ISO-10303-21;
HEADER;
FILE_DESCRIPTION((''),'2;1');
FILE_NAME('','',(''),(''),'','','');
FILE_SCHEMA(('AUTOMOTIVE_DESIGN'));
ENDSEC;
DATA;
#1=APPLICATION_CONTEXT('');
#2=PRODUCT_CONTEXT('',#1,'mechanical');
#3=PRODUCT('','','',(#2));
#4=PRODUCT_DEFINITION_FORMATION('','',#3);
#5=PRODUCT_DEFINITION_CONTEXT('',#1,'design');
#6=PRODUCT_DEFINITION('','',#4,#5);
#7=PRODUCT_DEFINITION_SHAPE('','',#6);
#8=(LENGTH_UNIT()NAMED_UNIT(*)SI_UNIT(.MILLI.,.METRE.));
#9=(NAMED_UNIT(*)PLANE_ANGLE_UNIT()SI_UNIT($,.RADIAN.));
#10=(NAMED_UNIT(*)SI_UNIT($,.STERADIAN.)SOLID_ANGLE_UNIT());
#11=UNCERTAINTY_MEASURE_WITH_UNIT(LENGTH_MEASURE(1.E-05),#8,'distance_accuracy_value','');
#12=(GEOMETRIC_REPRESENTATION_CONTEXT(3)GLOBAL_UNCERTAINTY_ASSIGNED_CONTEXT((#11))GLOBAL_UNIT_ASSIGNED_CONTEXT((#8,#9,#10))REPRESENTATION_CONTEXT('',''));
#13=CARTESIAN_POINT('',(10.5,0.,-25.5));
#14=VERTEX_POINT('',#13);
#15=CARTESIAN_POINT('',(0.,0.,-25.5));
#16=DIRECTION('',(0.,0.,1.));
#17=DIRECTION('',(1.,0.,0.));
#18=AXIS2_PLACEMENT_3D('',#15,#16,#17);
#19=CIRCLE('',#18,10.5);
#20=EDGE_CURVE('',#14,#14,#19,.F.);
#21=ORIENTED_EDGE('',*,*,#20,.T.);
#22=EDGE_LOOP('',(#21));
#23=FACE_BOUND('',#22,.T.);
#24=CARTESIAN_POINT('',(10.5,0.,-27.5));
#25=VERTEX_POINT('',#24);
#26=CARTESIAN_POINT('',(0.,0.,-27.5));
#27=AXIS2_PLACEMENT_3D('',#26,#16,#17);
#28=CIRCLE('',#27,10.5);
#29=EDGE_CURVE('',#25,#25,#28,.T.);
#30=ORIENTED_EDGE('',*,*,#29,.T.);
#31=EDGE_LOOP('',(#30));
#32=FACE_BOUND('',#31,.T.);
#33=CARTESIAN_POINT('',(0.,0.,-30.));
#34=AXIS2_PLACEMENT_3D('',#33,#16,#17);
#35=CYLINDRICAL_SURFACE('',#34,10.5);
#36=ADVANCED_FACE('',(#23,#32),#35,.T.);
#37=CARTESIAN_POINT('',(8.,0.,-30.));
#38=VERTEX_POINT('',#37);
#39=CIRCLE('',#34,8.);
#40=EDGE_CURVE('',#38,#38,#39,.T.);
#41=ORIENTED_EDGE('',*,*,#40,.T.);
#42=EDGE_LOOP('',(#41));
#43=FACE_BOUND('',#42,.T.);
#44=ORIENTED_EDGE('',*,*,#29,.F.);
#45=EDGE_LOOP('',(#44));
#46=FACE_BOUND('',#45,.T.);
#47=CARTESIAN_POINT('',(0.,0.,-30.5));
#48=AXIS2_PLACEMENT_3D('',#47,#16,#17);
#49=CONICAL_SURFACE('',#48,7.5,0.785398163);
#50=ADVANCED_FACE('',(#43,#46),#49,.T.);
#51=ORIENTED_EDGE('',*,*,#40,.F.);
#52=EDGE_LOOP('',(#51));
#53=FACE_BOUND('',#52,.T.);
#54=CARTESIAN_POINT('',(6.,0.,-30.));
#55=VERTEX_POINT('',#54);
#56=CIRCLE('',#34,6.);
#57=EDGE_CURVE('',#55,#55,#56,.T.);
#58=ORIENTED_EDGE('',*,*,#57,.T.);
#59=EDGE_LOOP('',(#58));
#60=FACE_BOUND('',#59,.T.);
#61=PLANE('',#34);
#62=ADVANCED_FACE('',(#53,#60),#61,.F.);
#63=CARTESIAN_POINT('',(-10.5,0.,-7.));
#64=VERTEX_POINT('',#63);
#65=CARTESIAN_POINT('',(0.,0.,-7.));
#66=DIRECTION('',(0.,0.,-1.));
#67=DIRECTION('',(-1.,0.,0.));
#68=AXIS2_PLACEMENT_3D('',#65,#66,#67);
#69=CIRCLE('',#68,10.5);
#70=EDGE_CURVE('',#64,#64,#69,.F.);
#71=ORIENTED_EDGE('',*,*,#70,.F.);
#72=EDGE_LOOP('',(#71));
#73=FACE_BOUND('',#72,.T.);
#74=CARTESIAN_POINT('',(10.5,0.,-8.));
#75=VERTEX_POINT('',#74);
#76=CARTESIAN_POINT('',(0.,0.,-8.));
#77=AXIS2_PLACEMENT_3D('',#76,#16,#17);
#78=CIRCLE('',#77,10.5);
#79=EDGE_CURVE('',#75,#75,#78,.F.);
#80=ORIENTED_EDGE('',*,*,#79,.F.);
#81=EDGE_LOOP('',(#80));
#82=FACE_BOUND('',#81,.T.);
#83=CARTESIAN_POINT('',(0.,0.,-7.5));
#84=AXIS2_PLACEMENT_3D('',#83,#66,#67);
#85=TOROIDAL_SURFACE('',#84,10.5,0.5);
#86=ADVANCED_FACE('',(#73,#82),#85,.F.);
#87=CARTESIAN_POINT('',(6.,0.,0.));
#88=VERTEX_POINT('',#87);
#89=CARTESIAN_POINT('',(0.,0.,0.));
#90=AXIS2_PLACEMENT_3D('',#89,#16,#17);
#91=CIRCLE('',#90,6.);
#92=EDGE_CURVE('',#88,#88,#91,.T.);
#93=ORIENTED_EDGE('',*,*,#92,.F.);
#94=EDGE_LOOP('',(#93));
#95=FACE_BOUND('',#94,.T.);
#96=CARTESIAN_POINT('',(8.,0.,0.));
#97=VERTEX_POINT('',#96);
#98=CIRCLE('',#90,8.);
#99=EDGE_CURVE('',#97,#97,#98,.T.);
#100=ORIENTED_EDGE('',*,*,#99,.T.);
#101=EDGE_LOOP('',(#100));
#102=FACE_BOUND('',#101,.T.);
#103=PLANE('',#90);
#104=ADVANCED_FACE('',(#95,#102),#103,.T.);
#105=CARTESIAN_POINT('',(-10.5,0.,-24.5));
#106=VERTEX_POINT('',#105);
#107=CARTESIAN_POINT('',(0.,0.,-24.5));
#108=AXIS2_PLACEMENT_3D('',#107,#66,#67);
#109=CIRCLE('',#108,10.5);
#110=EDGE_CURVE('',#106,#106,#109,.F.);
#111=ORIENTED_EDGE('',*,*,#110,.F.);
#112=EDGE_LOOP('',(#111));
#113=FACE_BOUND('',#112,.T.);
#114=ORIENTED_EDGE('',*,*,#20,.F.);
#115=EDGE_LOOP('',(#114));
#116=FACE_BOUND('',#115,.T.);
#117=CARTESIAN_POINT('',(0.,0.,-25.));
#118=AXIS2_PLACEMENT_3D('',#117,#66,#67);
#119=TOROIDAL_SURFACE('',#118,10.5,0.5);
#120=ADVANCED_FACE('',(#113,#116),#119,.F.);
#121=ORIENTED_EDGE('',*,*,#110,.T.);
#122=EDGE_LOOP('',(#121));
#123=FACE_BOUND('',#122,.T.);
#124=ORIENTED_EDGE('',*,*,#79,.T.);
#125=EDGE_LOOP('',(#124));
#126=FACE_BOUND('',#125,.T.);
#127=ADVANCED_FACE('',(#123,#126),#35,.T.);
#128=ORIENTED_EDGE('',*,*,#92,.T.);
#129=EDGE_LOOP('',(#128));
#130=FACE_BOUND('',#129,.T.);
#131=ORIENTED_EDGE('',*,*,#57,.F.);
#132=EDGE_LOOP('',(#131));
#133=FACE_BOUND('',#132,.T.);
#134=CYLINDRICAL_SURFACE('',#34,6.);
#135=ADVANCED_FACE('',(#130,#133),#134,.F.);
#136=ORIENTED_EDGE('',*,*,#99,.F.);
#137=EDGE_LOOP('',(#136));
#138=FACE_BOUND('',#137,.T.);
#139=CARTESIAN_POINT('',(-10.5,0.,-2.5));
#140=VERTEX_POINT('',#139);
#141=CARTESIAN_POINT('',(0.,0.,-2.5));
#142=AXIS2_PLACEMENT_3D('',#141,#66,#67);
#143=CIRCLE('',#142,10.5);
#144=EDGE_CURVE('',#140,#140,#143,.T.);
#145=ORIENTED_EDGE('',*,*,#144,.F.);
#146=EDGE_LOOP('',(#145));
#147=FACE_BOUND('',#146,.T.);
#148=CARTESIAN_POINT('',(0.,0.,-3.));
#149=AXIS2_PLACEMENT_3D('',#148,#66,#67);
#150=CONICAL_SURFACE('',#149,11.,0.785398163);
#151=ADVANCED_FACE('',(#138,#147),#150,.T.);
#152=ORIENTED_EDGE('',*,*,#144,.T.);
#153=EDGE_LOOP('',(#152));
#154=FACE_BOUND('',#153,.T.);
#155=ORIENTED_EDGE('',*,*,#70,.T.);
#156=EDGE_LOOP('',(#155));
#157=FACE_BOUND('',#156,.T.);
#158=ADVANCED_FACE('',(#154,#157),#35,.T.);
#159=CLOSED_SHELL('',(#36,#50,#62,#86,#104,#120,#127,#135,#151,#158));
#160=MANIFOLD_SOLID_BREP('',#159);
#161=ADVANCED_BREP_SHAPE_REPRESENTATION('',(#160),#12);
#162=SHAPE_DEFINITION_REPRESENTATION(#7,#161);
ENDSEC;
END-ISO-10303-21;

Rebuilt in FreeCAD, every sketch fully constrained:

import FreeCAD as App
import Part
import Sketcher

V = App.Vector


def add_polygon(sketch, points):
    """Adds a closed chain of lines whose ends are joined by coincident constraints."""
    first, n = sketch.GeometryCount, len(points)
    for a, b in zip(points, points[1:] + points[:1]):
        sketch.addGeometry(Part.LineSegment(App.Vector(*a, 0), App.Vector(*b, 0)), False)
    for i in range(n):
        sketch.addConstraint(Sketcher.Constraint("Coincident", first + i, 2, first + (i + 1) % n, 1))

doc = App.newDocument("Part")
params = doc.addObject("Spreadsheet::Sheet", "Params")
for row, (alias, value) in enumerate([
    ("sketch1_diameter", "21 mm"),
    ("sketch1_diameter2", "12 mm"),
    ("pad1_length", "30 mm"),
    ("sketch2_width", "3.5 mm"),
    ("groove_angle", "360 deg"),
    ("sketch3_diameter", "1 mm"),
    ("groove2_angle", "360 deg"),
], start=1):
    params.set(f"A{row}", alias)
    params.set(f"B{row}", "=" + value)
    params.setAlias(f"B{row}", alias)

body = doc.addObject("PartDesign::Body", "Body")

# Sketch on XY plane
sketch1 = body.newObject("Sketcher::SketchObject", "Sketch")
sketch1.AttachmentSupport = (doc.getObject("XY_Plane"), [""])
sketch1.MapMode = "FlatFace"
sketch1.addGeometry(Part.Circle(V(0, 0, 0), V(0, 0, 1), 10.5), False)
sketch1.addGeometry(Part.Circle(V(0, 0, 0), V(0, 0, 1), 6), False)
sketch1.addConstraint(Sketcher.Constraint("Coincident", 0, 3, -1, 1))
sketch1.addConstraint(Sketcher.Constraint("Coincident", 1, 3, -1, 1))
sketch1.addConstraint(Sketcher.Constraint("Diameter", 0, 21.0))
sketch1.addConstraint(Sketcher.Constraint("Diameter", 1, 12.0))
sketch1.setExpression("Constraints[2]", "Params.sketch1_diameter")
sketch1.setExpression("Constraints[3]", "Params.sketch1_diameter2")
pad1 = body.newObject("PartDesign::Pad", "Pad")
pad1.Profile = sketch1
pad1.setExpression("Length", "Params.pad1_length")
pad1.Reversed = True

# Sketch on XZ plane
sketch2 = body.newObject("Sketcher::SketchObject", "Sketch001")
sketch2.AttachmentSupport = (doc.getObject("XZ_Plane"), [""])
sketch2.MapMode = "FlatFace"
add_polygon(sketch2, [(7.5, -30.5), (11, -27), (11, -30.5)])  # lines 0-2
add_polygon(sketch2, [(11, -3), (7.5, 0.5), (11, 0.5)])  # lines 3-5
sketch2.addConstraint(Sketcher.Constraint("Vertical", 1))
sketch2.addConstraint(Sketcher.Constraint("Horizontal", 2))
sketch2.addConstraint(Sketcher.Constraint("Horizontal", 4))
sketch2.addConstraint(Sketcher.Constraint("Vertical", 5))
sketch2.addConstraint(Sketcher.Constraint("Perpendicular", 0, 3))
sketch2.addConstraint(Sketcher.Constraint("Vertical", 2, 2, 3, 2))
sketch2.addConstraint(Sketcher.Constraint("Vertical", 1, 2, 4, 2))
sketch2.addConstraint(Sketcher.Constraint("Equal", 4, 1))
sketch2.addConstraint(Sketcher.Constraint("DistanceX", 2, 2, 2, 1, 3.5))
sketch2.addConstraint(Sketcher.Constraint("DistanceX", -1, 1, 0, 2, 11.0))
sketch2.addConstraint(Sketcher.Constraint("DistanceY", 0, 2, -1, 1, 27.0))
sketch2.addConstraint(Sketcher.Constraint("DistanceY", 5, 2, -1, 1, 3.0))
sketch2.setExpression("Constraints[14]", "Params.sketch2_width")
groove = body.newObject("PartDesign::Groove", "Groove")
groove.Profile = sketch2
groove.ReferenceAxis = (sketch2, ["V_Axis"])
groove.setExpression("Angle", "Params.groove_angle")

# Sketch on XZ plane
sketch3 = body.newObject("Sketcher::SketchObject", "Sketch002")
sketch3.AttachmentSupport = (doc.getObject("XZ_Plane"), [""])
sketch3.MapMode = "FlatFace"
sketch3.addGeometry(Part.Circle(V(10.5, -25, 0), V(0, 0, 1), 0.5), False)
sketch3.addGeometry(Part.Circle(V(10.5, -7.5, 0), V(0, 0, 1), 0.5), False)
sketch3.addConstraint(Sketcher.Constraint("Equal", 0, 1))
sketch3.addConstraint(Sketcher.Constraint("Vertical", 0, 3, 1, 3))
sketch3.addConstraint(Sketcher.Constraint("Diameter", 0, 1.0))
sketch3.addConstraint(Sketcher.Constraint("DistanceY", 0, 3, -1, 1, 25.0))
sketch3.addConstraint(Sketcher.Constraint("DistanceX", -1, 1, 0, 3, 10.5))
sketch3.addConstraint(Sketcher.Constraint("DistanceY", 1, 3, -1, 1, 7.5))
sketch3.setExpression("Constraints[2]", "Params.sketch3_diameter")
groove2 = body.newObject("PartDesign::Groove", "Groove001")
groove2.Profile = sketch3
groove2.ReferenceAxis = (sketch3, ["V_Axis"])
groove2.setExpression("Angle", "Params.groove2_angle")

doc.recompute()
